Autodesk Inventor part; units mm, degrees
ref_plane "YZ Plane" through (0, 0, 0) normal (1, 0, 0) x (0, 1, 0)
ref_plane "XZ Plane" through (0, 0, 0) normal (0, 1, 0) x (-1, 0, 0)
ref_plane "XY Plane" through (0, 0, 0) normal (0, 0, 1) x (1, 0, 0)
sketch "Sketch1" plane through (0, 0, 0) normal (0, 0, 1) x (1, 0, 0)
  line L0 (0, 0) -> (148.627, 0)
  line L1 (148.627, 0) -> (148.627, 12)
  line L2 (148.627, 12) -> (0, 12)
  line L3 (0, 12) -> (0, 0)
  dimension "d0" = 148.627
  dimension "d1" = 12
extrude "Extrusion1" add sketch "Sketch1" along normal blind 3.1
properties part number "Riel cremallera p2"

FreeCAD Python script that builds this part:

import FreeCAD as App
import Part
import Sketcher
from FreeCAD import Vector

doc = App.newDocument("Part")
body = doc.addObject("PartDesign::Body", "Body")

sketch1 = body.newObject("Sketcher::SketchObject", "Sketch")
sketch1.AttachmentSupport = (doc.getObject("XY_Plane"), [""])
sketch1.MapMode = "FlatFace"
sketch1.addGeometry([
    Part.LineSegment(Vector(0, 12, 0), Vector(0, 0, 0)),
    Part.LineSegment(Vector(0, 0, 0), Vector(149, 0, 0)),
    Part.LineSegment(Vector(149, 0, 0), Vector(149, 12, 0)),
    Part.LineSegment(Vector(149, 12, 0), Vector(0, 12, 0)),
], False)
sketch1.addConstraint([
    Sketcher.Constraint("Coincident", 0, 2, 1, 1),
    Sketcher.Constraint("Coincident", 1, 2, 2, 1),
    Sketcher.Constraint("Coincident", 2, 2, 3, 1),
    Sketcher.Constraint("Coincident", 3, 2, 0, 1),
    Sketcher.Constraint("Vertical", 0),
    Sketcher.Constraint("Horizontal", 1),
    Sketcher.Constraint("Vertical", 2),
    Sketcher.Constraint("Horizontal", 3),
    Sketcher.Constraint("Coincident", 0, 2, -1, 1),
    Sketcher.Constraint("DistanceY", 0, 2, 0, 1, 12.0),
    Sketcher.Constraint("DistanceX", 1, 1, 1, 2, 148.627),
])
pad1 = body.newObject("PartDesign::Pad", "Pad")
pad1.Profile = sketch1
pad1.Length = 3.1

doc.recompute()
